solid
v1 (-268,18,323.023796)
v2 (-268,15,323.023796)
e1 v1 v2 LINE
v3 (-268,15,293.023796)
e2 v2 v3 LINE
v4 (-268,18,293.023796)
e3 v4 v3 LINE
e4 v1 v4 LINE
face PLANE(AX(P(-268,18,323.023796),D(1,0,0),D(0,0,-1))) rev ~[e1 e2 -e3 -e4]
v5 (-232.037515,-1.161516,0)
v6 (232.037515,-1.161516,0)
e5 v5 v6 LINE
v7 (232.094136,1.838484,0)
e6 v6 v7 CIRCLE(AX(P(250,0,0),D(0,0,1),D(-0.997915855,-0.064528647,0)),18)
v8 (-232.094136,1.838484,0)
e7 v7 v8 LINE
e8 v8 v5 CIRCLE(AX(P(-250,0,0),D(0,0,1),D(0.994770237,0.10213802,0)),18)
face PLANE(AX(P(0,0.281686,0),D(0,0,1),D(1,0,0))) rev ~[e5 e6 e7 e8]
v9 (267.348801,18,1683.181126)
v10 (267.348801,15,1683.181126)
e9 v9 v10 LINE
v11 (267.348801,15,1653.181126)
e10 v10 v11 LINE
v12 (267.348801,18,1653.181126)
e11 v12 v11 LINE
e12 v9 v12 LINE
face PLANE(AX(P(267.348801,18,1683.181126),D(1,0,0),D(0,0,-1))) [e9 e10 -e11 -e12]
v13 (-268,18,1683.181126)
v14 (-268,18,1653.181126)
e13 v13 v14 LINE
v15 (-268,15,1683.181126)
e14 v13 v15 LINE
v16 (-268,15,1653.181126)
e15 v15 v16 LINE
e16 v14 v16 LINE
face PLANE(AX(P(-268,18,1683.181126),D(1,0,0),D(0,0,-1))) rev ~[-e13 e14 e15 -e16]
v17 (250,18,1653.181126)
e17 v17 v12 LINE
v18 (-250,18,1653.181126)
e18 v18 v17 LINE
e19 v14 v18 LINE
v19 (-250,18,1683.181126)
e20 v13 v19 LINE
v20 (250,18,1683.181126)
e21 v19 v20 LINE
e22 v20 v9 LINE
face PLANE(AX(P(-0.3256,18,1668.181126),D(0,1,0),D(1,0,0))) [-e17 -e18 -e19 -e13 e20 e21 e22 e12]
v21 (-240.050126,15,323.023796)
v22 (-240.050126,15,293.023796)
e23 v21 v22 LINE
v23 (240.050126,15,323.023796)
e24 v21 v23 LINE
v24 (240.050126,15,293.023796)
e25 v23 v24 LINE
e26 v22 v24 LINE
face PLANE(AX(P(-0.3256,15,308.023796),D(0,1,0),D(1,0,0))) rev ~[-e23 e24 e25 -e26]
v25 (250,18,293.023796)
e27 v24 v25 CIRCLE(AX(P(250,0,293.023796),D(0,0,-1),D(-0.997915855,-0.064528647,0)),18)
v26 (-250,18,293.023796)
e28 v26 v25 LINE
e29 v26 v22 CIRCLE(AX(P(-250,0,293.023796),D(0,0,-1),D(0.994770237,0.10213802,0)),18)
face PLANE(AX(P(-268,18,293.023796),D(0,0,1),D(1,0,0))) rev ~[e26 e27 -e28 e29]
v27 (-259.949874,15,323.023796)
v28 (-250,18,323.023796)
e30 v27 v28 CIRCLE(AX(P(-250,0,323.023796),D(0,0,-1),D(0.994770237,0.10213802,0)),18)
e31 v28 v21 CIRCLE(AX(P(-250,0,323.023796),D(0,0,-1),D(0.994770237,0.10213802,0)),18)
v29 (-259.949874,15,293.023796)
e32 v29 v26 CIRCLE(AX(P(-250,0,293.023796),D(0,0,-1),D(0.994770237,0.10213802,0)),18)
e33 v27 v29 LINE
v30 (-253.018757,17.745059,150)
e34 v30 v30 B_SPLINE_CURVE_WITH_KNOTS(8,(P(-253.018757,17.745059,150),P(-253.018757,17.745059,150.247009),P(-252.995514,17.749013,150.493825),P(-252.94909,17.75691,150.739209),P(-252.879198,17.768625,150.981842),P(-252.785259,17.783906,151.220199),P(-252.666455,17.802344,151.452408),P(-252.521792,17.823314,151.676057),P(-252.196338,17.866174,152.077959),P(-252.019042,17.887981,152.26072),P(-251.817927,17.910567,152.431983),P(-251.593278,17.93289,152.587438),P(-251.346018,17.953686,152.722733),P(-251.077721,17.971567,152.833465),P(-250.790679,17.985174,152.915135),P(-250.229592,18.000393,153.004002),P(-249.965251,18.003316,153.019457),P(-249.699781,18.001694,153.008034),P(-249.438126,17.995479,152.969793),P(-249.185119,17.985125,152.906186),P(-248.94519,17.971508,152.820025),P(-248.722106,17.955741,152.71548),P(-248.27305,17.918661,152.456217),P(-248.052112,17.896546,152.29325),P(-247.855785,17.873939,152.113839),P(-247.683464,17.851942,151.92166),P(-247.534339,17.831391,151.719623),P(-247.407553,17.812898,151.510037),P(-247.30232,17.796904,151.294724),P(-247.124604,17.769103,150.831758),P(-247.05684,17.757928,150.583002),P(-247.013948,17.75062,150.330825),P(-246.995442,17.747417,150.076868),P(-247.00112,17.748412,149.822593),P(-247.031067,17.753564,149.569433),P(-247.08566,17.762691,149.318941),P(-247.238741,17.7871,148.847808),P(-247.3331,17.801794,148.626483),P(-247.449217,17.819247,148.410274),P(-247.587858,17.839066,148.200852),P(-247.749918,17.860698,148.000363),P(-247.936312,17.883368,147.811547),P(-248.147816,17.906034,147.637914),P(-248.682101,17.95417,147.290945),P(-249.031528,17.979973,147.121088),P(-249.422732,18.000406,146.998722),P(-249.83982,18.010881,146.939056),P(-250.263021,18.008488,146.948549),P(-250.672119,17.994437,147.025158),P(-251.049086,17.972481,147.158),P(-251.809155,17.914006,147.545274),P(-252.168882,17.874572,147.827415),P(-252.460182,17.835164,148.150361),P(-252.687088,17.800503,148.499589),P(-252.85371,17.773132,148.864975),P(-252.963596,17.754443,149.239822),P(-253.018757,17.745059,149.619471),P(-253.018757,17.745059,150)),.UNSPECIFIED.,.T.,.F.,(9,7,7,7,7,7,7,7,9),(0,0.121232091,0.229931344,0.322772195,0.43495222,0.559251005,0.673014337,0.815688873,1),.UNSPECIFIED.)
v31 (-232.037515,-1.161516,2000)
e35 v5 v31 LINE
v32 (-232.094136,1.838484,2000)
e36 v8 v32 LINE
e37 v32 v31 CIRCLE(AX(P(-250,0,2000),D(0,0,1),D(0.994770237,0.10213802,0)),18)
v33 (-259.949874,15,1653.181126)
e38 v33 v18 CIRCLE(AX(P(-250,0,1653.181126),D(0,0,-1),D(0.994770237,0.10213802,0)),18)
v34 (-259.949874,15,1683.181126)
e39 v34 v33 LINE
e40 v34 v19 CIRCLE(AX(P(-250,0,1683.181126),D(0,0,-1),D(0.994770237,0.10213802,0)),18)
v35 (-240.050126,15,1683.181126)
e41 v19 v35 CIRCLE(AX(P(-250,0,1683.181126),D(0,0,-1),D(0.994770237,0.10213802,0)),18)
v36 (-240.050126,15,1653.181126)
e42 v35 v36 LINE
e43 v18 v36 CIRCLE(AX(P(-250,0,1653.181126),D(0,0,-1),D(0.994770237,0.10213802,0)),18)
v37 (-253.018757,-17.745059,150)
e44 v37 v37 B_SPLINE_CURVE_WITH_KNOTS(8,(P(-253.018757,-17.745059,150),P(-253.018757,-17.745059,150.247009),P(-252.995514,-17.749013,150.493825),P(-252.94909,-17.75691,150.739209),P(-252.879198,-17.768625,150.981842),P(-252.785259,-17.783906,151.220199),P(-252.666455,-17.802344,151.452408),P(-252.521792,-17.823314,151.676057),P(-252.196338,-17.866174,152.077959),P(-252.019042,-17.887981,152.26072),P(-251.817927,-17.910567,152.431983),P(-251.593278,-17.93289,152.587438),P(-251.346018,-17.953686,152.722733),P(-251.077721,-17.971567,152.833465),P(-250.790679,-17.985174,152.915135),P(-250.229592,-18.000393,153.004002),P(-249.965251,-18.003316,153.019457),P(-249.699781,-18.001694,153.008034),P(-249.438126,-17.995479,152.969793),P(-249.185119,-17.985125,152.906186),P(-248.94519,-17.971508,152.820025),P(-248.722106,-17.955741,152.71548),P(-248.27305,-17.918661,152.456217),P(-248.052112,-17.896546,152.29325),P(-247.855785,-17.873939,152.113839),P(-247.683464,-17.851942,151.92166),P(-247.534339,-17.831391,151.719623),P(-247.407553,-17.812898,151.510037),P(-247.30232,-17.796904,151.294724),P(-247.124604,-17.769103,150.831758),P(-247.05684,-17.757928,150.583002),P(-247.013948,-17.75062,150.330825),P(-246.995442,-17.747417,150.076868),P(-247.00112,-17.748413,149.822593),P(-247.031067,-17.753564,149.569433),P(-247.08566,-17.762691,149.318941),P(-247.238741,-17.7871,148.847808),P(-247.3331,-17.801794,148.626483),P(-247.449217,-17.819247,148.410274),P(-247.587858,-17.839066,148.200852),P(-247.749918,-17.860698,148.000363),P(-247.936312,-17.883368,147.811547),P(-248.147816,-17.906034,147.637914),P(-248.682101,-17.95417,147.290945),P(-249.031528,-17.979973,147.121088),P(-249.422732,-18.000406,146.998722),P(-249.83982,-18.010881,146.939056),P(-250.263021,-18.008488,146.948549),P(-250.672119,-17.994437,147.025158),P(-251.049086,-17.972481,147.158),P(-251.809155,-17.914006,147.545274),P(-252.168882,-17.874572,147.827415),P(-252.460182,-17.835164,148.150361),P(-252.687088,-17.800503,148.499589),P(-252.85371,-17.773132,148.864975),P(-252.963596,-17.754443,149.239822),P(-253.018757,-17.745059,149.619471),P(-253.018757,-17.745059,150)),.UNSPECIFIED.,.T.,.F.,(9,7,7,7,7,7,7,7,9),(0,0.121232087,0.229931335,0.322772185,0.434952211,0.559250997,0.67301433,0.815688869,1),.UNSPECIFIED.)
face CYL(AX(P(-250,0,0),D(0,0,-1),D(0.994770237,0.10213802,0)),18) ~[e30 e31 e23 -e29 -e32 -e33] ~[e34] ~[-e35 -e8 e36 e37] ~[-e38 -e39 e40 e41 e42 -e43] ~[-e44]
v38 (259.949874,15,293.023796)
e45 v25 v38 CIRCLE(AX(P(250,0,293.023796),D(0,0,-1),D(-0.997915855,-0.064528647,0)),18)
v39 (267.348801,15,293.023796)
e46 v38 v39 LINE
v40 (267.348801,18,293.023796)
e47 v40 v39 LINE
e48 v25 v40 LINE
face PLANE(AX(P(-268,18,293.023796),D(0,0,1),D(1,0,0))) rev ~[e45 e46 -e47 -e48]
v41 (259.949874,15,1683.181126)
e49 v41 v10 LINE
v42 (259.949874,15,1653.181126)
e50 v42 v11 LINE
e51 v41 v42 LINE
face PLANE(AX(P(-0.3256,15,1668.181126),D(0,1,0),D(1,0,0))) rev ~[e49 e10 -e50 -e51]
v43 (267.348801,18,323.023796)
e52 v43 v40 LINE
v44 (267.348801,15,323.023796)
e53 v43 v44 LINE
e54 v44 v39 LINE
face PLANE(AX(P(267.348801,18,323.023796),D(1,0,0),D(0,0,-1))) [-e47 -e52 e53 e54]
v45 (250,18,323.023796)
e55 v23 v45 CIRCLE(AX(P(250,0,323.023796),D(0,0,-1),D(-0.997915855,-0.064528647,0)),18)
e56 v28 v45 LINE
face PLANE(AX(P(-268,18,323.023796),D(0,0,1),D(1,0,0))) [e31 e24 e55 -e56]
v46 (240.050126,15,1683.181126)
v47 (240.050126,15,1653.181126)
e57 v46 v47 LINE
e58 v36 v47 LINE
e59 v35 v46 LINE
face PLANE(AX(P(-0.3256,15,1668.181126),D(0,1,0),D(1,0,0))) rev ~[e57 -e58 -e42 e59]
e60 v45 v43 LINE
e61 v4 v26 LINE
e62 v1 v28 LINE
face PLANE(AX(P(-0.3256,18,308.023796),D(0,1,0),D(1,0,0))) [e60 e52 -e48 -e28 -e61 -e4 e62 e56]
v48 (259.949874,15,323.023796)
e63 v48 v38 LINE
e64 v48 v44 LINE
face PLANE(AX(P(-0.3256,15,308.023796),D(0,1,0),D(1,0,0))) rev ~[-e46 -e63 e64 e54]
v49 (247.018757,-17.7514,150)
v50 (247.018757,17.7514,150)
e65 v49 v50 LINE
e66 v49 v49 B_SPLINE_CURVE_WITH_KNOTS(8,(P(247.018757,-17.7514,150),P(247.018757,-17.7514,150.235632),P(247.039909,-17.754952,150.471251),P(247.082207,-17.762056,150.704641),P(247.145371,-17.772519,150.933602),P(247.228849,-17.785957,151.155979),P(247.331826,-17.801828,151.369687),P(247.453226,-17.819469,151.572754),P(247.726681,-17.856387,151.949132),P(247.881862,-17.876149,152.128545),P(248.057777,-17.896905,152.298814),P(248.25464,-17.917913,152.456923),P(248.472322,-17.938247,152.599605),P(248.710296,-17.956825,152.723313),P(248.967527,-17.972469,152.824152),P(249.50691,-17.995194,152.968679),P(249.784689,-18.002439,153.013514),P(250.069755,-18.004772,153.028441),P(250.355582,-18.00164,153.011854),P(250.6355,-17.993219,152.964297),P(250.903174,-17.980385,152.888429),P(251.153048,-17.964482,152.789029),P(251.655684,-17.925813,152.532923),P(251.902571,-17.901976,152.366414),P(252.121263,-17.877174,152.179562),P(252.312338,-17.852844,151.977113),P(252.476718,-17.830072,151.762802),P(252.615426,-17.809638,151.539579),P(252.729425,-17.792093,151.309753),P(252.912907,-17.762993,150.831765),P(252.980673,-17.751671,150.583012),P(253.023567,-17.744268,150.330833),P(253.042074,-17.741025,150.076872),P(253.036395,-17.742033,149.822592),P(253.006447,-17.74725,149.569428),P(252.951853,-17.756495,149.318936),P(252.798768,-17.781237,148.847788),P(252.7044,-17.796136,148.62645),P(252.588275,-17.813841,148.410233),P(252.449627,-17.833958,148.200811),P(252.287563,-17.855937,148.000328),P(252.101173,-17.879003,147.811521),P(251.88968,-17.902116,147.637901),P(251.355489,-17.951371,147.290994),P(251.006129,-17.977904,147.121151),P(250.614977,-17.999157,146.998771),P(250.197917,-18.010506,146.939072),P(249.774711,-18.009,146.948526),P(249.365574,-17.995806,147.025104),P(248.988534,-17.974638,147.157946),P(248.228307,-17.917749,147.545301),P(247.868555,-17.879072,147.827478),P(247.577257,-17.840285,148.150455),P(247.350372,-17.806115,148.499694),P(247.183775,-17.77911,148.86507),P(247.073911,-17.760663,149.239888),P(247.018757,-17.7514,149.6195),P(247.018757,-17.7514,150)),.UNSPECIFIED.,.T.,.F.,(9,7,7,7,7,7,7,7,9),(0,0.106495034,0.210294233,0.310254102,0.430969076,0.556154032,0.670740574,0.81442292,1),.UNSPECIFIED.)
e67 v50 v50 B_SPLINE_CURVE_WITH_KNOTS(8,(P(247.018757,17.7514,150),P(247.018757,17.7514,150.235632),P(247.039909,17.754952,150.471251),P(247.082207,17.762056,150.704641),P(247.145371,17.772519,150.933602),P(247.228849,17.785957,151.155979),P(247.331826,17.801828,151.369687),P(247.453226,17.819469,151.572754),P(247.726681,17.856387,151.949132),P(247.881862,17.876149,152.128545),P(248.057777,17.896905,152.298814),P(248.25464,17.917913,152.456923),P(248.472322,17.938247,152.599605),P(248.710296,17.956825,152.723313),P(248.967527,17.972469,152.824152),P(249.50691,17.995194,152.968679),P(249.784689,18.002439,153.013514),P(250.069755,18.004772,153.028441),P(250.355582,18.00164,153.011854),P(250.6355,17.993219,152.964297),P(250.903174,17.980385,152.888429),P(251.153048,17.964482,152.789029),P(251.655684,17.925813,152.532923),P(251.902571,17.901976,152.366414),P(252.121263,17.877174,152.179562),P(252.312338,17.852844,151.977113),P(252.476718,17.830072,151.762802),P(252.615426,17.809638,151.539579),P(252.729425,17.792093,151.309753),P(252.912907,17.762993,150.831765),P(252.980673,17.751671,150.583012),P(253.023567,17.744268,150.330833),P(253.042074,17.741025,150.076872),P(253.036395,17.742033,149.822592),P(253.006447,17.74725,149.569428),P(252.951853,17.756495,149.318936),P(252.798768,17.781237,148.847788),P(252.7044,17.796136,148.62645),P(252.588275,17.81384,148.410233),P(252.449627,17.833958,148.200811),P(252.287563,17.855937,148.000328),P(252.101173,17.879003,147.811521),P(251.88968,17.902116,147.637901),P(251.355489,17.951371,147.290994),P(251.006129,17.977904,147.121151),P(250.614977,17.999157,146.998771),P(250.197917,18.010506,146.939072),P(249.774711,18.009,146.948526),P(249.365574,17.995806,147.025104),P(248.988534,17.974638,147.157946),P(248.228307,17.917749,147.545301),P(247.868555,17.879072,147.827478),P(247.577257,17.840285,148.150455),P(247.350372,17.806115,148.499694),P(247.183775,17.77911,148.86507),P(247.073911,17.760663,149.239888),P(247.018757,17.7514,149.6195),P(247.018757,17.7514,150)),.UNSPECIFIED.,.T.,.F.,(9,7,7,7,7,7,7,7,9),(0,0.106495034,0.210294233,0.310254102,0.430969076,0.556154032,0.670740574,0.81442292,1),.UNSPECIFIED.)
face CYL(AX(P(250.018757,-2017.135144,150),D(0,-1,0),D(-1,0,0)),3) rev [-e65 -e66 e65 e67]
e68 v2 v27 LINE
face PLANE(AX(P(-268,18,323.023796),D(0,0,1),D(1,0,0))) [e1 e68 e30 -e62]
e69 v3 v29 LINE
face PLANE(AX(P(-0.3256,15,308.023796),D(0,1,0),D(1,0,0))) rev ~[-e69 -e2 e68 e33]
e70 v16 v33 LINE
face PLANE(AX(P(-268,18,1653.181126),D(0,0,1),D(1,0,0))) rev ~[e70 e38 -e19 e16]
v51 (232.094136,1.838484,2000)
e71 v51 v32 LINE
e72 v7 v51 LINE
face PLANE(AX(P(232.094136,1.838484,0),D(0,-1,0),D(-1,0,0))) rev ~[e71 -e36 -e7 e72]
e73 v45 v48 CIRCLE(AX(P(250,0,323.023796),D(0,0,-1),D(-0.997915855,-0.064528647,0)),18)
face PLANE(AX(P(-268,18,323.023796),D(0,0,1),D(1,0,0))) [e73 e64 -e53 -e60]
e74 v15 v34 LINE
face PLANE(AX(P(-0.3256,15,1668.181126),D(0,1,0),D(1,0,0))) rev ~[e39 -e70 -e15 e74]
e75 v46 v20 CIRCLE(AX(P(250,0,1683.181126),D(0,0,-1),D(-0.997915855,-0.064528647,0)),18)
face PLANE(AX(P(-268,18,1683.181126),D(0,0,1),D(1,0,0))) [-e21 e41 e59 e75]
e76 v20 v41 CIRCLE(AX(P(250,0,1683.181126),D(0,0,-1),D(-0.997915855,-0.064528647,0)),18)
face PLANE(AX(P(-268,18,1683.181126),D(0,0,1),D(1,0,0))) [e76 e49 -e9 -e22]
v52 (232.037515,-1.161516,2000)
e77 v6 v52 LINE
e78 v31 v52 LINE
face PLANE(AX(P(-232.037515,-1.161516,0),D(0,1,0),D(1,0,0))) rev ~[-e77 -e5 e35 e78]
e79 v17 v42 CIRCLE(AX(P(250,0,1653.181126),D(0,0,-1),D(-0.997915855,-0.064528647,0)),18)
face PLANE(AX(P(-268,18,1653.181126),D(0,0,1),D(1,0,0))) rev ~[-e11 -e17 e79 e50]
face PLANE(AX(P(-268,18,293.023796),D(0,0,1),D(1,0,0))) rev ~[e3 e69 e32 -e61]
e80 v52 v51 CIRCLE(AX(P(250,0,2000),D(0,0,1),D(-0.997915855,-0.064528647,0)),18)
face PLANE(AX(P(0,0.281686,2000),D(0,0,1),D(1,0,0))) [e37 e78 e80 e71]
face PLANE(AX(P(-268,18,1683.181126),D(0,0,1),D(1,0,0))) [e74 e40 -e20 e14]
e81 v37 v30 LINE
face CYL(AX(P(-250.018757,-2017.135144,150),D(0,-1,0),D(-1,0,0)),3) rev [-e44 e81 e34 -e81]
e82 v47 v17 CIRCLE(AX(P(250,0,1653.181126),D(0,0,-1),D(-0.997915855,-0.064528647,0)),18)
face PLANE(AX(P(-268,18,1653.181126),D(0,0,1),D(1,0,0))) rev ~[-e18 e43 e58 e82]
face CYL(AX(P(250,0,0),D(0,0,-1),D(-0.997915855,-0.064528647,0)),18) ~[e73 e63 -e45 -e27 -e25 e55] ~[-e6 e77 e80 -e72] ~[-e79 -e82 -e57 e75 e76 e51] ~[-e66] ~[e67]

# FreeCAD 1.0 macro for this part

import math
import FreeCAD as App
import Part
import Sketcher

doc = App.newDocument("Part")
body = doc.addObject("PartDesign::Body", "Body")

# Sketch on XY plane
sketch1 = body.newObject("Sketcher::SketchObject", "Sketch")
sketch1.AttachmentSupport = (doc.getObject("XY_Plane"), [""])
sketch1.MapMode = "FlatFace"
sketch1.addGeometry(Part.Circle(App.Vector(-250, 0, 0), App.Vector(0, 0, 1), 15), False)
sketch1.addConstraint([
    Sketcher.Constraint("PointOnObject", 0, 3, -1),
    Sketcher.Constraint("Diameter", 0, 30.0),
    Sketcher.Constraint("DistanceX", 0, 3, -1, 1, 250.0),
])
pad1 = body.newObject("PartDesign::Pad", "Pad")
pad1.Profile = sketch1
pad1.Length = 2000
body2 = doc.addObject("PartDesign::Body", "Body001")

# Sketch on XY plane
sketch2 = body2.newObject("Sketcher::SketchObject", "Sketch001")
sketch2.AttachmentSupport = (doc.getObject("XY_Plane001"), [""])
sketch2.MapMode = "FlatFace"
sketch2.addGeometry(Part.Circle(App.Vector(250, 0, 0), App.Vector(0, 0, 1), 15), False)
sketch2.addConstraint([
    Sketcher.Constraint("PointOnObject", 0, 3, -1),
    Sketcher.Constraint("Diameter", 0, 30.0),
    Sketcher.Constraint("DistanceX", -1, 1, 0, 3, 250.0),
])
pad2 = body2.newObject("PartDesign::Pad", "Pad001")
pad2.Profile = sketch2
pad2.Length = 2000
body.AllowCompound = True
doc.recompute()

boolean = body.newObject("PartDesign::Boolean", "Boolean")
boolean.Type = "Fuse"
boolean.addObjects([body2])

# Sketch on XY plane
sketch3 = body.newObject("Sketcher::SketchObject", "Sketch002")
sketch3.AttachmentSupport = (doc.getObject("XY_Plane"), [""])
sketch3.MapMode = "FlatFace"
sketch3.addGeometry([
    Part.LineSegment(App.Vector(-232.1, 1.8, 0), App.Vector(232.1, 1.8, 0)),  # 0
    Part.ArcOfCircle(Part.Circle(App.Vector(250, 0, 0), App.Vector(0, 0, 1), 18), math.radians(-176), math.radians(174)),  # 1
    Part.LineSegment(App.Vector(232, -1.2, 0), App.Vector(-232, -1.2, 0)),  # 2
    Part.ArcOfCircle(Part.Circle(App.Vector(-250, 0, 0), App.Vector(0, 0, 1), 18), math.radians(6), math.radians(356)),  # 3
    Part.Circle(App.Vector(-250, 0, 0), App.Vector(0, 0, 1), 15),  # 4
    Part.Circle(App.Vector(250, 0, 0), App.Vector(0, 0, 1), 15),  # 5
], False)
sketch3.addConstraint([
    Sketcher.Constraint("Coincident", 0, 2, 1, 2),
    Sketcher.Constraint("Coincident", 1, 1, 2, 1),
    Sketcher.Constraint("Coincident", 2, 2, 3, 2),
    Sketcher.Constraint("Coincident", 3, 1, 0, 1),
    Sketcher.Constraint("Horizontal", 0),
    Sketcher.Constraint("Horizontal", 2),
    Sketcher.Constraint("Coincident", 4, 3, 3, 3),
    Sketcher.Constraint("Coincident", 5, 3, 1, 3),
    Sketcher.Constraint("Equal", 1, 3),
    Sketcher.Constraint("Equal", 4, 5),
    Sketcher.Constraint("Symmetric", 1, 3, 3, 3, -1, 1),
    Sketcher.Constraint("PointOnObject", 1, 3, -1),
    Sketcher.Constraint("Diameter", 4, 30.0),
    Sketcher.Constraint("Radius", 1, 18.0),
    Sketcher.Constraint("DistanceX", -1, 1, 1, 3, 250.0),
    Sketcher.Constraint("DistanceY", 1, 1, 0, 2, 3.0),
    Sketcher.Constraint("DistanceX", 0, 1, 0, 2, 464.188271),
])
pad3 = body.newObject("PartDesign::Pad", "Pad002")
pad3.Profile = sketch3
pad3.Length = 2000

# Sketch on XZ plane
sketch4 = body.newObject("Sketcher::SketchObject", "Sketch003")
sketch4.AttachmentSupport = (doc.getObject("XZ_Plane"), [""])
sketch4.MapMode = "FlatFace"
sketch4.AttachmentOffset = App.Placement(App.Vector(0, 0, -1.838484), App.Rotation())
sketch4.addGeometry([
    Part.Circle(App.Vector(250, 150, 0), App.Vector(0, 0, 1), 3),
    Part.Circle(App.Vector(-250, 150, 0), App.Vector(0, 0, 1), 3),
], False)
sketch4.addConstraint([
    Sketcher.Constraint("Equal", 0, 1),
    Sketcher.Constraint("Symmetric", 0, 3, 1, 3, -2),
    Sketcher.Constraint("Diameter", 0, 6.0),
    Sketcher.Constraint("DistanceY", -1, 1, 0, 3, 150.0),
    Sketcher.Constraint("DistanceX", -1, 1, 0, 3, 250.018757),
])
pocket1 = body.newObject("PartDesign::Pocket", "Pocket")
pocket1.Profile = sketch4
pocket1.Type = "ThroughAll"
pocket1.Midplane = True

# Sketch on XZ plane
sketch5 = body.newObject("Sketcher::SketchObject", "Sketch004")
sketch5.AttachmentSupport = (doc.getObject("XZ_Plane"), [""])
sketch5.MapMode = "FlatFace"
sketch5.AttachmentOffset = App.Placement(App.Vector(0, 0, -18), App.Rotation())
sketch5.addGeometry([
    Part.LineSegment(App.Vector(-268, 293, 0), App.Vector(-268, 323, 0)),  # 0
    Part.LineSegment(App.Vector(-268, 323, 0), App.Vector(267, 323, 0)),  # 1
    Part.LineSegment(App.Vector(267, 323, 0), App.Vector(267, 293, 0)),  # 2
    Part.LineSegment(App.Vector(267, 293, 0), App.Vector(-268, 293, 0)),  # 3
    Part.LineSegment(App.Vector(-268, 1653, 0), App.Vector(-268, 1683, 0)),  # 4
    Part.LineSegment(App.Vector(-268, 1683, 0), App.Vector(267, 1683, 0)),  # 5
    Part.LineSegment(App.Vector(267, 1683, 0), App.Vector(267, 1653, 0)),  # 6
    Part.LineSegment(App.Vector(267, 1653, 0), App.Vector(-268, 1653, 0)),  # 7
], False)
sketch5.addConstraint([
    Sketcher.Constraint("Coincident", 0, 2, 1, 1),
    Sketcher.Constraint("Coincident", 1, 2, 2, 1),
    Sketcher.Constraint("Coincident", 2, 2, 3, 1),
    Sketcher.Constraint("Coincident", 3, 2, 0, 1),
    Sketcher.Constraint("Coincident", 4, 2, 5, 1),
    Sketcher.Constraint("Coincident", 5, 2, 6, 1),
    Sketcher.Constraint("Coincident", 6, 2, 7, 1),
    Sketcher.Constraint("Coincident", 7, 2, 4, 1),
    Sketcher.Constraint("Vertical", 0),
    Sketcher.Constraint("Horizontal", 1),
    Sketcher.Constraint("Vertical", 2),
    Sketcher.Constraint("Horizontal", 3),
    Sketcher.Constraint("Vertical", 4),
    Sketcher.Constraint("Horizontal", 5),
    Sketcher.Constraint("Vertical", 6),
    Sketcher.Constraint("Horizontal", 7),
    Sketcher.Constraint("Vertical", 3, 2, 4, 2),
    Sketcher.Constraint("Vertical", 2, 2, 5, 2),
    Sketcher.Constraint("Equal", 2, 4),
    Sketcher.Constraint("DistanceY", 0, 1, 0, 2, 30.0),
    Sketcher.Constraint("DistanceX", 0, 2, -1, 1, 268.0),
    Sketcher.Constraint("DistanceX", 1, 1, 1, 2, 535.348801),
    Sketcher.Constraint("DistanceY", 0, 2, 4, 2, 1360.15733),
    Sketcher.Constraint("DistanceY", -1, 1, 0, 2, 323.023796),
])
pad4 = body.newObject("PartDesign::Pad", "Pad003")
pad4.Profile = sketch5
pad4.Length = 3

doc.recompute()
